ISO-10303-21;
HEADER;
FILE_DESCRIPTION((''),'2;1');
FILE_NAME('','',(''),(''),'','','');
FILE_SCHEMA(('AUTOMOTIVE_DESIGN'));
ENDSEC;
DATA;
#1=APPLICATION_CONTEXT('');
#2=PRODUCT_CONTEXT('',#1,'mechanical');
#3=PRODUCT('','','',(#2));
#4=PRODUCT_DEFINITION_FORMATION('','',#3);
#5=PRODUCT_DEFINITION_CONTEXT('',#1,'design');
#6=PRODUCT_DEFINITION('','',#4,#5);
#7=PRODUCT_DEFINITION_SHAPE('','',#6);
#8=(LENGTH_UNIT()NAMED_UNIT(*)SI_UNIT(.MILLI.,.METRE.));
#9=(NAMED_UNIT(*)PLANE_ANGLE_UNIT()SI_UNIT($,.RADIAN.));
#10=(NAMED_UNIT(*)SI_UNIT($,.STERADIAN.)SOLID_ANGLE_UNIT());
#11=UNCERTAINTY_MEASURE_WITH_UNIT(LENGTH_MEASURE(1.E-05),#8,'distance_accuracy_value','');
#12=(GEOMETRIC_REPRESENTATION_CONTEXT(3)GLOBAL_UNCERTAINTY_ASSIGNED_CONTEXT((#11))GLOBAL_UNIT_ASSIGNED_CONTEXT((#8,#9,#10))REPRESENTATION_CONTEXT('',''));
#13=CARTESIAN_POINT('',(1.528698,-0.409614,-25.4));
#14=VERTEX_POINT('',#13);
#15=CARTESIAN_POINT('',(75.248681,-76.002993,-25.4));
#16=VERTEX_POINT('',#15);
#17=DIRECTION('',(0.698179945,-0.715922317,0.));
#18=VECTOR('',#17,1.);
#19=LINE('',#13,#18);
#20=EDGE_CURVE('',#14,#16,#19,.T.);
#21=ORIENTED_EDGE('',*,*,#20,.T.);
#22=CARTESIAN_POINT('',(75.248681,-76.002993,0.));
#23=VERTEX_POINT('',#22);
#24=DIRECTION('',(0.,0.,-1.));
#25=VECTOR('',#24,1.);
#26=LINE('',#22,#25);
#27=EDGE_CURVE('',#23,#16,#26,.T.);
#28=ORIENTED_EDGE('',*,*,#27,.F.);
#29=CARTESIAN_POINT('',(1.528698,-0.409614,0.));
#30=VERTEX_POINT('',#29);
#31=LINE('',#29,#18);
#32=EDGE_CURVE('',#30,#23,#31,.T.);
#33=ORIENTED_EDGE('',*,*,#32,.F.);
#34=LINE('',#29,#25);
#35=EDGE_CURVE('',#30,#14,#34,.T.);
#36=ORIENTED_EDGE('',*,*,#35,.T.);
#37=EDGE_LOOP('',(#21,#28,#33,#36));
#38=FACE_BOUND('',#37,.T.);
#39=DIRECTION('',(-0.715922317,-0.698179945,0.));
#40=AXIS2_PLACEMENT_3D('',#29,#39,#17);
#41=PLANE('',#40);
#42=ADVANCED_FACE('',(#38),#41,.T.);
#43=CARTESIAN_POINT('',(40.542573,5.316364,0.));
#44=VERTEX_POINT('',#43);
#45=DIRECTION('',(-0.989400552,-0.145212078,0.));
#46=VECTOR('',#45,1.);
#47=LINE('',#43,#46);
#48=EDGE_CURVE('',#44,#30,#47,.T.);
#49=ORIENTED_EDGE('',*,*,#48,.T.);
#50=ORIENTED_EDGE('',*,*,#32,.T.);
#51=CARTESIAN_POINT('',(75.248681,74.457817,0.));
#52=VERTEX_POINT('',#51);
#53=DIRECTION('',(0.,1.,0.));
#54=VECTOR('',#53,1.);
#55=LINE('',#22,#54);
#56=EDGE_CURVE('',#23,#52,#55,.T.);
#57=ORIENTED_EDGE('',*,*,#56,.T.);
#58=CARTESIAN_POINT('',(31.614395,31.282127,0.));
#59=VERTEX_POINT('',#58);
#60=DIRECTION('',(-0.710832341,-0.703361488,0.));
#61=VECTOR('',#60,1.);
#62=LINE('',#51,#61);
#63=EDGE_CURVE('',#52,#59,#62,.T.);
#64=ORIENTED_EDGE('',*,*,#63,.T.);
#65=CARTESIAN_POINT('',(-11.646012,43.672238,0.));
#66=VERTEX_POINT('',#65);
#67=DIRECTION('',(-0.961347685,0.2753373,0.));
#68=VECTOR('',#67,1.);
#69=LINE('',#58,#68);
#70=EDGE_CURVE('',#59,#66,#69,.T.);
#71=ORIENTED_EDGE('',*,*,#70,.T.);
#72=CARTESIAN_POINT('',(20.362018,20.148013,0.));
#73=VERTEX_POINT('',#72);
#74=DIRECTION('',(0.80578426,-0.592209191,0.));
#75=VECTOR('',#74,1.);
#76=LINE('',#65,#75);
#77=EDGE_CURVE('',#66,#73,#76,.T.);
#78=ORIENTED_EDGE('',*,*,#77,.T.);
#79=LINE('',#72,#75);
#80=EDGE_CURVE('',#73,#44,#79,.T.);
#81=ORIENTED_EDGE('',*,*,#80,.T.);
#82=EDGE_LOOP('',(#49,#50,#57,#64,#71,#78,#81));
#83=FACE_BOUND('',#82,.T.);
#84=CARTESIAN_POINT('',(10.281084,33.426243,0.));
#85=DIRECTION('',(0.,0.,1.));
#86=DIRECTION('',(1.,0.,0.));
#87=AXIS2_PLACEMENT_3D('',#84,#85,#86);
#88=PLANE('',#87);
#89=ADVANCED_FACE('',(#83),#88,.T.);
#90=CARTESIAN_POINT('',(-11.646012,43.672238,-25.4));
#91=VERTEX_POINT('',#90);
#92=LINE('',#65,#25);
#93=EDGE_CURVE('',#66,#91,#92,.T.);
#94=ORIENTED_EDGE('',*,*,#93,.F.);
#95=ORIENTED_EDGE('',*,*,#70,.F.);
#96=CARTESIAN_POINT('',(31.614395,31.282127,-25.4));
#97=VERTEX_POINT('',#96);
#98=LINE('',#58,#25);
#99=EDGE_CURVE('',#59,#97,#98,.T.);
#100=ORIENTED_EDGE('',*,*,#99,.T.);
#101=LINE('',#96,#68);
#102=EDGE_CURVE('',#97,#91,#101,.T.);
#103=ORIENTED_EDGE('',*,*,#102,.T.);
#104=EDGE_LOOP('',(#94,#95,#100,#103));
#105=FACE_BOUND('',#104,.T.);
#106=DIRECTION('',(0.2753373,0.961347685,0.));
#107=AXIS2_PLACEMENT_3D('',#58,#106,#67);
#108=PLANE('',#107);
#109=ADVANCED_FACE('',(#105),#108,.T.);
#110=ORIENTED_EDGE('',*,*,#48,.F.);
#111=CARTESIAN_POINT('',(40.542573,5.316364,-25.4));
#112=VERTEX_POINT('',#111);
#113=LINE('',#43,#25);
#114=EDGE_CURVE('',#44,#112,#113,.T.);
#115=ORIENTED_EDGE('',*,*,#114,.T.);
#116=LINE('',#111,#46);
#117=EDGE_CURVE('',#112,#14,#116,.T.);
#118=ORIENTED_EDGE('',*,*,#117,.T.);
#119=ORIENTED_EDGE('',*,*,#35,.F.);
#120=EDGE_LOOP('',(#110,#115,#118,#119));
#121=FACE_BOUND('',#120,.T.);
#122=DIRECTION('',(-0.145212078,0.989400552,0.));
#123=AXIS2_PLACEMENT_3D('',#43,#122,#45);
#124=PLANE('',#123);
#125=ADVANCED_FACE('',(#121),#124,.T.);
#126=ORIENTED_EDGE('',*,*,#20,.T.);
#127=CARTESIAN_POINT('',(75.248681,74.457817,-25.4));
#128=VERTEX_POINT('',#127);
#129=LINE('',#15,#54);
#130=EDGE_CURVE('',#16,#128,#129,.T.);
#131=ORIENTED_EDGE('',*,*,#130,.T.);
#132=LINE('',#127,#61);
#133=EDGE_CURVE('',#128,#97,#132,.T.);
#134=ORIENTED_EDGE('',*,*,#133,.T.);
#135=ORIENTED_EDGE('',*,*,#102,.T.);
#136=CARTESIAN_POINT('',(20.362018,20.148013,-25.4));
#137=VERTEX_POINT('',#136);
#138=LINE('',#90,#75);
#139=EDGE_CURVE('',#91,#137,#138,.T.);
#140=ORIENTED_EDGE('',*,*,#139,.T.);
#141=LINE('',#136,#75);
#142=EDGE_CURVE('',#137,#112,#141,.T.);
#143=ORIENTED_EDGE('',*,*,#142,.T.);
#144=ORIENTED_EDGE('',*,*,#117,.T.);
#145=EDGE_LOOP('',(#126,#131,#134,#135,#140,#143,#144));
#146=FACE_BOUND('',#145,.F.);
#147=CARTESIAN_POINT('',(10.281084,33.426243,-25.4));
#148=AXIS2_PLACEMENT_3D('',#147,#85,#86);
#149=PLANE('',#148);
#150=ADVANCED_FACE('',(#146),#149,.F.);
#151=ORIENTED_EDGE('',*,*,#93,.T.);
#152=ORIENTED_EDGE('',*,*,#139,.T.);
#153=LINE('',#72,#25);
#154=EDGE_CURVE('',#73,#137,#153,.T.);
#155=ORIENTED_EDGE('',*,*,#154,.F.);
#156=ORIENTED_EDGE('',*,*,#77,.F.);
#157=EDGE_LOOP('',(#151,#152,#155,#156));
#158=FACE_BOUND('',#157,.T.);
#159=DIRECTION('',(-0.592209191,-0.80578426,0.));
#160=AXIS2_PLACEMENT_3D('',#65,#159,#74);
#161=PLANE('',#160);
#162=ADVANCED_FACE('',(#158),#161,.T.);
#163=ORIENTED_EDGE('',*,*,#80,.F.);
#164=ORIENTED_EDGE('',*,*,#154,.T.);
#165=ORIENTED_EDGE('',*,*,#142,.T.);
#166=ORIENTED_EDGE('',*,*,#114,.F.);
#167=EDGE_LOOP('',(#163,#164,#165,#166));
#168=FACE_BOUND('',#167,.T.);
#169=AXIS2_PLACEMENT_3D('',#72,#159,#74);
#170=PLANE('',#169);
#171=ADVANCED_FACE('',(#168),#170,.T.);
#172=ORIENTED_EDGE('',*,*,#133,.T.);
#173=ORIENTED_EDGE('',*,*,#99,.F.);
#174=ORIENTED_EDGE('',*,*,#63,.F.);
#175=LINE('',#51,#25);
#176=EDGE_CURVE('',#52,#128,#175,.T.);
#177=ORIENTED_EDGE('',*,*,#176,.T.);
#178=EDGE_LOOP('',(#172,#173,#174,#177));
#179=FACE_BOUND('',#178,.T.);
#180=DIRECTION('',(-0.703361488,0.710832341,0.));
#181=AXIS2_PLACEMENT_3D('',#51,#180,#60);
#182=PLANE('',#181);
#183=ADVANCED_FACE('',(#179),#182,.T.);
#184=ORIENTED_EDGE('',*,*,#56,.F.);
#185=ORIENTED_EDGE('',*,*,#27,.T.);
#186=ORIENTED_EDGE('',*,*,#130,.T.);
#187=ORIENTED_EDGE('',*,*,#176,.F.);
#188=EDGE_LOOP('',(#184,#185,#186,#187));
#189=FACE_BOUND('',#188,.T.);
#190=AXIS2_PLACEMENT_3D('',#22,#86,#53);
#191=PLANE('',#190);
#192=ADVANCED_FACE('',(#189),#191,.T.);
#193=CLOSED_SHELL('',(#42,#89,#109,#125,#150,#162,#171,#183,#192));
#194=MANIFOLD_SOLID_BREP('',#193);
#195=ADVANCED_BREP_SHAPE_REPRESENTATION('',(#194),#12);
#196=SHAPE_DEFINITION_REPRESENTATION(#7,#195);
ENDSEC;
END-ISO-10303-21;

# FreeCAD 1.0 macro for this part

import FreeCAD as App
import Part
import Sketcher
Q = App.Units.Quantity


def add_polygon(sketch, points):
    """Adds a closed chain of lines whose ends are joined by coincident constraints."""
    first, n = sketch.GeometryCount, len(points)
    for a, b in zip(points, points[1:] + points[:1]):
        sketch.addGeometry(Part.LineSegment(App.Vector(*a, 0), App.Vector(*b, 0)), False)
    for i in range(n):
        sketch.addConstraint(Sketcher.Constraint("Coincident", first + i, 2, first + (i + 1) % n, 1))

doc = App.newDocument("Part")
body = doc.addObject("PartDesign::Body", "Body")

# Sketch on XY plane
sketch1 = body.newObject("Sketcher::SketchObject", "Sketch")
sketch1.AttachmentSupport = (doc.getObject("XY_Plane"), [""])
sketch1.MapMode = "FlatFace"
add_polygon(sketch1, [(-12, 44), (20, 20), (41, 5), (2, 0), (75, -76), (75, 74), (32, 31)])  # lines 0-6
sketch1.addConstraint([
    Sketcher.Constraint("Vertical", 4),
    Sketcher.Constraint("Parallel", 0, 1),
    Sketcher.Constraint("Distance", 3, 105.5888),
    Sketcher.Constraint("DistanceY", 4, 1, 4, 2, 150.460809),
    Sketcher.Constraint("DistanceX", -1, 1, 2, 2, 1.528698),
    Sketcher.Constraint("Distance", 0, 39.722829),
    Sketcher.Constraint("Distance", 2, 39.43183),
    Sketcher.Constraint("Distance", 5, 61.384779),
    Sketcher.Constraint("Distance", 6, 44.999751),
    Sketcher.Constraint("DistanceX", -1, 1, 0, 2, 20.362018),
    Sketcher.Constraint("DistanceX", -1, 1, 3, 2, 75.248681),
    Sketcher.Constraint("DistanceX", 6, 2, -1, 1, 11.646012),
    Sketcher.Constraint("DistanceY", 1, 2, 0, 2, 14.83165),
    Sketcher.Constraint("DistanceY", -1, 1, 0, 2, 20.148013),
])
pad1 = body.newObject("PartDesign::Pad", "Pad")
pad1.Profile = sketch1
pad1.Length = Q("1 in")
pad1.Reversed = True

doc.recompute()
